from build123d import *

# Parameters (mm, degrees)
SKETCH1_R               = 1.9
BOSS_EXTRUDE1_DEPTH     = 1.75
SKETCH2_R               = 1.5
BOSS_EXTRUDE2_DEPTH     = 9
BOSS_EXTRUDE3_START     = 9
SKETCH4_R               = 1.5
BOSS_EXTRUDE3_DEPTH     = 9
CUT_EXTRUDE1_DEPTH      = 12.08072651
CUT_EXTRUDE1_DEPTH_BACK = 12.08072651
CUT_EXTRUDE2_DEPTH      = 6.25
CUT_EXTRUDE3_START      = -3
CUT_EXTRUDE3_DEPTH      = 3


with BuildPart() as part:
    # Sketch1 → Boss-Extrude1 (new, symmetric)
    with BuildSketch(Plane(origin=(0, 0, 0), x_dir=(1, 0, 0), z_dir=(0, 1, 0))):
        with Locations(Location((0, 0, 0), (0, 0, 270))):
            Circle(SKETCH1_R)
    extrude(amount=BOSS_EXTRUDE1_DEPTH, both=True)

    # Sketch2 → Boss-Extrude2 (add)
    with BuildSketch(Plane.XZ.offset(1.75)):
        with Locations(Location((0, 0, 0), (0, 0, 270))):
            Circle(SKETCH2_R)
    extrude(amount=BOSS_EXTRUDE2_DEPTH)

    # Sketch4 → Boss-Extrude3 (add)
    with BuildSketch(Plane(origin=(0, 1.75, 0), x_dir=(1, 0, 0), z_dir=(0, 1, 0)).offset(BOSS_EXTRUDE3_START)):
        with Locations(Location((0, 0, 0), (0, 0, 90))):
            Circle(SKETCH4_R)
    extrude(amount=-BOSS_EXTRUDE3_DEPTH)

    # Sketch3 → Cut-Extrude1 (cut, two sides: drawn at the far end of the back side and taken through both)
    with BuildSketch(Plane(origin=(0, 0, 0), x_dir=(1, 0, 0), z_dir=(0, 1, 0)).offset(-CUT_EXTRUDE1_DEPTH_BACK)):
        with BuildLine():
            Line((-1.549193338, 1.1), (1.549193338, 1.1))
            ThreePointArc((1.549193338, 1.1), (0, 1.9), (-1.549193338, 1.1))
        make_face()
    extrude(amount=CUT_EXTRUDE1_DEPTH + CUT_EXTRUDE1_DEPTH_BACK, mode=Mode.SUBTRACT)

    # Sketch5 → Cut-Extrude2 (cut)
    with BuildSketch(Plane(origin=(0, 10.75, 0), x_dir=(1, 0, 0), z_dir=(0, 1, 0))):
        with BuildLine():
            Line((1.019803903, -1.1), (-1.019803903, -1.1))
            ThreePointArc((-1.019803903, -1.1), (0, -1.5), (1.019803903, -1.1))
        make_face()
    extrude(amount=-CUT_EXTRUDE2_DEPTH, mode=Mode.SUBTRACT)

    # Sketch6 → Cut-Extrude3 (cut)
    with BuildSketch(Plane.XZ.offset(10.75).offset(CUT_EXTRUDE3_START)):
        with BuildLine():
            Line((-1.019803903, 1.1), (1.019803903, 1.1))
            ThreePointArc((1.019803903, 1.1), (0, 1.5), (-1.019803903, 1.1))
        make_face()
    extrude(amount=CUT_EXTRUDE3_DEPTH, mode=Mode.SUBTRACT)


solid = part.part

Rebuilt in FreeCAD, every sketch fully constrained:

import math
import FreeCAD as App
import Part
import Sketcher

V = App.Vector
Q = App.Units.Quantity

doc = App.newDocument("Part")
body = doc.addObject("PartDesign::Body", "Body")

# Sketch on XZ plane
sketch1 = body.newObject("Sketcher::SketchObject", "Sketch")
sketch1.AttachmentSupport = (doc.getObject("XZ_Plane"), [""])
sketch1.MapMode = "FlatFace"
sketch1.addGeometry(Part.Circle(V(0, 0, 0), V(0, 0, 1), 1.9), False)
sketch1.addConstraint([
    Sketcher.Constraint("Coincident", 0, 3, -1, 1),
    Sketcher.Constraint("Diameter", 0, Q("3.8 mm")),
])
pad1 = body.newObject("PartDesign::Pad", "Pad")
pad1.Profile = sketch1
pad1.Length = 3.5
pad1.Midplane = True

# Sketch on XZ plane
sketch2 = body.newObject("Sketcher::SketchObject", "Sketch001")
sketch2.AttachmentSupport = (doc.getObject("XZ_Plane"), [""])
sketch2.MapMode = "FlatFace"
sketch2.AttachmentOffset = App.Placement(V(0, 0, 1.75), App.Rotation())
sketch2.addGeometry(Part.Circle(V(0, 0, 0), V(0, 0, 1), 1.5), False)
sketch2.addConstraint([
    Sketcher.Constraint("Coincident", 0, 3, -1, 1),
    Sketcher.Constraint("Diameter", 0, Q("3 mm")),
])
pad2 = body.newObject("PartDesign::Pad", "Pad001")
pad2.Profile = sketch2
pad2.Length = 9

# Sketch on XZ plane
sketch3 = body.newObject("Sketcher::SketchObject", "Sketch002")
sketch3.AttachmentSupport = (doc.getObject("XZ_Plane"), [""])
sketch3.MapMode = "FlatFace"
sketch3.AttachmentOffset = App.Placement(V(0, 0, -10.75), App.Rotation())
sketch3.addGeometry(Part.Circle(V(0, 0, 0), V(0, 0, 1), 1.5), False)
sketch3.addConstraint([
    Sketcher.Constraint("Coincident", 0, 3, -1, 1),
    Sketcher.Constraint("Diameter", 0, Q("3 mm")),
])
pad3 = body.newObject("PartDesign::Pad", "Pad002")
pad3.Profile = sketch3
pad3.Length = 9

# Sketch on XZ plane
sketch4 = body.newObject("Sketcher::SketchObject", "Sketch003")
sketch4.AttachmentSupport = (doc.getObject("XZ_Plane"), [""])
sketch4.MapMode = "FlatFace"
sketch4.addGeometry([
    Part.LineSegment(V(-1.5, -1.1, 0), V(1.5, -1.1, 0)),
    Part.ArcOfCircle(Part.Circle(V(0, 0, 0), V(0, 0, 1), 1.9), math.radians(-145), math.radians(-35)),
], False)
sketch4.addConstraint([
    Sketcher.Constraint("Coincident", 0, 1, 1, 1),
    Sketcher.Constraint("Coincident", 1, 2, 0, 2),
    Sketcher.Constraint("Horizontal", 0),
    Sketcher.Constraint("Coincident", 1, 3, -1, 1),
    Sketcher.Constraint("Radius", 1, Q("1.9 mm")),
    Sketcher.Constraint("DistanceY", 0, 1, -1, 1, Q("1.1 mm")),
])
pocket1 = body.newObject("PartDesign::Pocket", "Pocket")
pocket1.Profile = sketch4
pocket1.Type = "ThroughAll"
pocket1.Midplane = True

# Sketch on XZ plane
sketch5 = body.newObject("Sketcher::SketchObject", "Sketch004")
sketch5.AttachmentSupport = (doc.getObject("XZ_Plane"), [""])
sketch5.MapMode = "FlatFace"
sketch5.AttachmentOffset = App.Placement(V(0, 0, -10.75), App.Rotation())
sketch5.addGeometry([
    Part.LineSegment(V(1, 1.1, 0), V(-1, 1.1, 0)),
    Part.ArcOfCircle(Part.Circle(V(0, 0, 0), V(0, 0, 1), 1.5), math.radians(47), math.radians(133)),
], False)
sketch5.addConstraint([
    Sketcher.Constraint("Coincident", 0, 1, 1, 1),
    Sketcher.Constraint("Coincident", 1, 2, 0, 2),
    Sketcher.Constraint("Horizontal", 0),
    Sketcher.Constraint("Coincident", 1, 3, -1, 1),
    Sketcher.Constraint("Radius", 1, Q("1.5 mm")),
    Sketcher.Constraint("DistanceY", -1, 1, 0, 1, Q("1.1 mm")),
])
pocket2 = body.newObject("PartDesign::Pocket", "Pocket001")
pocket2.Profile = sketch5
pocket2.Length = 6.25
pocket2.Reversed = True

# Sketch on XZ plane
sketch6 = body.newObject("Sketcher::SketchObject", "Sketch005")
sketch6.AttachmentSupport = (doc.getObject("XZ_Plane"), [""])
sketch6.MapMode = "FlatFace"
sketch6.AttachmentOffset = App.Placement(V(0, 0, 7.75), App.Rotation())
sketch6.addGeometry([
    Part.LineSegment(V(-1, 1.1, 0), V(1, 1.1, 0)),
    Part.ArcOfCircle(Part.Circle(V(0, 0, 0), V(0, 0, 1), 1.5), math.radians(47), math.radians(133)),
], False)
sketch6.addConstraint([
    Sketcher.Constraint("Coincident", 0, 1, 1, 2),
    Sketcher.Constraint("Coincident", 1, 1, 0, 2),
    Sketcher.Constraint("Horizontal", 0),
    Sketcher.Constraint("Coincident", 1, 3, -1, 1),
    Sketcher.Constraint("Radius", 1, Q("1.5 mm")),
    Sketcher.Constraint("DistanceY", -1, 1, 0, 1, Q("1.1 mm")),
])
pocket3 = body.newObject("PartDesign::Pocket", "Pocket002")
pocket3.Profile = sketch6
pocket3.Length = 3
pocket3.Reversed = True

doc.recompute()
